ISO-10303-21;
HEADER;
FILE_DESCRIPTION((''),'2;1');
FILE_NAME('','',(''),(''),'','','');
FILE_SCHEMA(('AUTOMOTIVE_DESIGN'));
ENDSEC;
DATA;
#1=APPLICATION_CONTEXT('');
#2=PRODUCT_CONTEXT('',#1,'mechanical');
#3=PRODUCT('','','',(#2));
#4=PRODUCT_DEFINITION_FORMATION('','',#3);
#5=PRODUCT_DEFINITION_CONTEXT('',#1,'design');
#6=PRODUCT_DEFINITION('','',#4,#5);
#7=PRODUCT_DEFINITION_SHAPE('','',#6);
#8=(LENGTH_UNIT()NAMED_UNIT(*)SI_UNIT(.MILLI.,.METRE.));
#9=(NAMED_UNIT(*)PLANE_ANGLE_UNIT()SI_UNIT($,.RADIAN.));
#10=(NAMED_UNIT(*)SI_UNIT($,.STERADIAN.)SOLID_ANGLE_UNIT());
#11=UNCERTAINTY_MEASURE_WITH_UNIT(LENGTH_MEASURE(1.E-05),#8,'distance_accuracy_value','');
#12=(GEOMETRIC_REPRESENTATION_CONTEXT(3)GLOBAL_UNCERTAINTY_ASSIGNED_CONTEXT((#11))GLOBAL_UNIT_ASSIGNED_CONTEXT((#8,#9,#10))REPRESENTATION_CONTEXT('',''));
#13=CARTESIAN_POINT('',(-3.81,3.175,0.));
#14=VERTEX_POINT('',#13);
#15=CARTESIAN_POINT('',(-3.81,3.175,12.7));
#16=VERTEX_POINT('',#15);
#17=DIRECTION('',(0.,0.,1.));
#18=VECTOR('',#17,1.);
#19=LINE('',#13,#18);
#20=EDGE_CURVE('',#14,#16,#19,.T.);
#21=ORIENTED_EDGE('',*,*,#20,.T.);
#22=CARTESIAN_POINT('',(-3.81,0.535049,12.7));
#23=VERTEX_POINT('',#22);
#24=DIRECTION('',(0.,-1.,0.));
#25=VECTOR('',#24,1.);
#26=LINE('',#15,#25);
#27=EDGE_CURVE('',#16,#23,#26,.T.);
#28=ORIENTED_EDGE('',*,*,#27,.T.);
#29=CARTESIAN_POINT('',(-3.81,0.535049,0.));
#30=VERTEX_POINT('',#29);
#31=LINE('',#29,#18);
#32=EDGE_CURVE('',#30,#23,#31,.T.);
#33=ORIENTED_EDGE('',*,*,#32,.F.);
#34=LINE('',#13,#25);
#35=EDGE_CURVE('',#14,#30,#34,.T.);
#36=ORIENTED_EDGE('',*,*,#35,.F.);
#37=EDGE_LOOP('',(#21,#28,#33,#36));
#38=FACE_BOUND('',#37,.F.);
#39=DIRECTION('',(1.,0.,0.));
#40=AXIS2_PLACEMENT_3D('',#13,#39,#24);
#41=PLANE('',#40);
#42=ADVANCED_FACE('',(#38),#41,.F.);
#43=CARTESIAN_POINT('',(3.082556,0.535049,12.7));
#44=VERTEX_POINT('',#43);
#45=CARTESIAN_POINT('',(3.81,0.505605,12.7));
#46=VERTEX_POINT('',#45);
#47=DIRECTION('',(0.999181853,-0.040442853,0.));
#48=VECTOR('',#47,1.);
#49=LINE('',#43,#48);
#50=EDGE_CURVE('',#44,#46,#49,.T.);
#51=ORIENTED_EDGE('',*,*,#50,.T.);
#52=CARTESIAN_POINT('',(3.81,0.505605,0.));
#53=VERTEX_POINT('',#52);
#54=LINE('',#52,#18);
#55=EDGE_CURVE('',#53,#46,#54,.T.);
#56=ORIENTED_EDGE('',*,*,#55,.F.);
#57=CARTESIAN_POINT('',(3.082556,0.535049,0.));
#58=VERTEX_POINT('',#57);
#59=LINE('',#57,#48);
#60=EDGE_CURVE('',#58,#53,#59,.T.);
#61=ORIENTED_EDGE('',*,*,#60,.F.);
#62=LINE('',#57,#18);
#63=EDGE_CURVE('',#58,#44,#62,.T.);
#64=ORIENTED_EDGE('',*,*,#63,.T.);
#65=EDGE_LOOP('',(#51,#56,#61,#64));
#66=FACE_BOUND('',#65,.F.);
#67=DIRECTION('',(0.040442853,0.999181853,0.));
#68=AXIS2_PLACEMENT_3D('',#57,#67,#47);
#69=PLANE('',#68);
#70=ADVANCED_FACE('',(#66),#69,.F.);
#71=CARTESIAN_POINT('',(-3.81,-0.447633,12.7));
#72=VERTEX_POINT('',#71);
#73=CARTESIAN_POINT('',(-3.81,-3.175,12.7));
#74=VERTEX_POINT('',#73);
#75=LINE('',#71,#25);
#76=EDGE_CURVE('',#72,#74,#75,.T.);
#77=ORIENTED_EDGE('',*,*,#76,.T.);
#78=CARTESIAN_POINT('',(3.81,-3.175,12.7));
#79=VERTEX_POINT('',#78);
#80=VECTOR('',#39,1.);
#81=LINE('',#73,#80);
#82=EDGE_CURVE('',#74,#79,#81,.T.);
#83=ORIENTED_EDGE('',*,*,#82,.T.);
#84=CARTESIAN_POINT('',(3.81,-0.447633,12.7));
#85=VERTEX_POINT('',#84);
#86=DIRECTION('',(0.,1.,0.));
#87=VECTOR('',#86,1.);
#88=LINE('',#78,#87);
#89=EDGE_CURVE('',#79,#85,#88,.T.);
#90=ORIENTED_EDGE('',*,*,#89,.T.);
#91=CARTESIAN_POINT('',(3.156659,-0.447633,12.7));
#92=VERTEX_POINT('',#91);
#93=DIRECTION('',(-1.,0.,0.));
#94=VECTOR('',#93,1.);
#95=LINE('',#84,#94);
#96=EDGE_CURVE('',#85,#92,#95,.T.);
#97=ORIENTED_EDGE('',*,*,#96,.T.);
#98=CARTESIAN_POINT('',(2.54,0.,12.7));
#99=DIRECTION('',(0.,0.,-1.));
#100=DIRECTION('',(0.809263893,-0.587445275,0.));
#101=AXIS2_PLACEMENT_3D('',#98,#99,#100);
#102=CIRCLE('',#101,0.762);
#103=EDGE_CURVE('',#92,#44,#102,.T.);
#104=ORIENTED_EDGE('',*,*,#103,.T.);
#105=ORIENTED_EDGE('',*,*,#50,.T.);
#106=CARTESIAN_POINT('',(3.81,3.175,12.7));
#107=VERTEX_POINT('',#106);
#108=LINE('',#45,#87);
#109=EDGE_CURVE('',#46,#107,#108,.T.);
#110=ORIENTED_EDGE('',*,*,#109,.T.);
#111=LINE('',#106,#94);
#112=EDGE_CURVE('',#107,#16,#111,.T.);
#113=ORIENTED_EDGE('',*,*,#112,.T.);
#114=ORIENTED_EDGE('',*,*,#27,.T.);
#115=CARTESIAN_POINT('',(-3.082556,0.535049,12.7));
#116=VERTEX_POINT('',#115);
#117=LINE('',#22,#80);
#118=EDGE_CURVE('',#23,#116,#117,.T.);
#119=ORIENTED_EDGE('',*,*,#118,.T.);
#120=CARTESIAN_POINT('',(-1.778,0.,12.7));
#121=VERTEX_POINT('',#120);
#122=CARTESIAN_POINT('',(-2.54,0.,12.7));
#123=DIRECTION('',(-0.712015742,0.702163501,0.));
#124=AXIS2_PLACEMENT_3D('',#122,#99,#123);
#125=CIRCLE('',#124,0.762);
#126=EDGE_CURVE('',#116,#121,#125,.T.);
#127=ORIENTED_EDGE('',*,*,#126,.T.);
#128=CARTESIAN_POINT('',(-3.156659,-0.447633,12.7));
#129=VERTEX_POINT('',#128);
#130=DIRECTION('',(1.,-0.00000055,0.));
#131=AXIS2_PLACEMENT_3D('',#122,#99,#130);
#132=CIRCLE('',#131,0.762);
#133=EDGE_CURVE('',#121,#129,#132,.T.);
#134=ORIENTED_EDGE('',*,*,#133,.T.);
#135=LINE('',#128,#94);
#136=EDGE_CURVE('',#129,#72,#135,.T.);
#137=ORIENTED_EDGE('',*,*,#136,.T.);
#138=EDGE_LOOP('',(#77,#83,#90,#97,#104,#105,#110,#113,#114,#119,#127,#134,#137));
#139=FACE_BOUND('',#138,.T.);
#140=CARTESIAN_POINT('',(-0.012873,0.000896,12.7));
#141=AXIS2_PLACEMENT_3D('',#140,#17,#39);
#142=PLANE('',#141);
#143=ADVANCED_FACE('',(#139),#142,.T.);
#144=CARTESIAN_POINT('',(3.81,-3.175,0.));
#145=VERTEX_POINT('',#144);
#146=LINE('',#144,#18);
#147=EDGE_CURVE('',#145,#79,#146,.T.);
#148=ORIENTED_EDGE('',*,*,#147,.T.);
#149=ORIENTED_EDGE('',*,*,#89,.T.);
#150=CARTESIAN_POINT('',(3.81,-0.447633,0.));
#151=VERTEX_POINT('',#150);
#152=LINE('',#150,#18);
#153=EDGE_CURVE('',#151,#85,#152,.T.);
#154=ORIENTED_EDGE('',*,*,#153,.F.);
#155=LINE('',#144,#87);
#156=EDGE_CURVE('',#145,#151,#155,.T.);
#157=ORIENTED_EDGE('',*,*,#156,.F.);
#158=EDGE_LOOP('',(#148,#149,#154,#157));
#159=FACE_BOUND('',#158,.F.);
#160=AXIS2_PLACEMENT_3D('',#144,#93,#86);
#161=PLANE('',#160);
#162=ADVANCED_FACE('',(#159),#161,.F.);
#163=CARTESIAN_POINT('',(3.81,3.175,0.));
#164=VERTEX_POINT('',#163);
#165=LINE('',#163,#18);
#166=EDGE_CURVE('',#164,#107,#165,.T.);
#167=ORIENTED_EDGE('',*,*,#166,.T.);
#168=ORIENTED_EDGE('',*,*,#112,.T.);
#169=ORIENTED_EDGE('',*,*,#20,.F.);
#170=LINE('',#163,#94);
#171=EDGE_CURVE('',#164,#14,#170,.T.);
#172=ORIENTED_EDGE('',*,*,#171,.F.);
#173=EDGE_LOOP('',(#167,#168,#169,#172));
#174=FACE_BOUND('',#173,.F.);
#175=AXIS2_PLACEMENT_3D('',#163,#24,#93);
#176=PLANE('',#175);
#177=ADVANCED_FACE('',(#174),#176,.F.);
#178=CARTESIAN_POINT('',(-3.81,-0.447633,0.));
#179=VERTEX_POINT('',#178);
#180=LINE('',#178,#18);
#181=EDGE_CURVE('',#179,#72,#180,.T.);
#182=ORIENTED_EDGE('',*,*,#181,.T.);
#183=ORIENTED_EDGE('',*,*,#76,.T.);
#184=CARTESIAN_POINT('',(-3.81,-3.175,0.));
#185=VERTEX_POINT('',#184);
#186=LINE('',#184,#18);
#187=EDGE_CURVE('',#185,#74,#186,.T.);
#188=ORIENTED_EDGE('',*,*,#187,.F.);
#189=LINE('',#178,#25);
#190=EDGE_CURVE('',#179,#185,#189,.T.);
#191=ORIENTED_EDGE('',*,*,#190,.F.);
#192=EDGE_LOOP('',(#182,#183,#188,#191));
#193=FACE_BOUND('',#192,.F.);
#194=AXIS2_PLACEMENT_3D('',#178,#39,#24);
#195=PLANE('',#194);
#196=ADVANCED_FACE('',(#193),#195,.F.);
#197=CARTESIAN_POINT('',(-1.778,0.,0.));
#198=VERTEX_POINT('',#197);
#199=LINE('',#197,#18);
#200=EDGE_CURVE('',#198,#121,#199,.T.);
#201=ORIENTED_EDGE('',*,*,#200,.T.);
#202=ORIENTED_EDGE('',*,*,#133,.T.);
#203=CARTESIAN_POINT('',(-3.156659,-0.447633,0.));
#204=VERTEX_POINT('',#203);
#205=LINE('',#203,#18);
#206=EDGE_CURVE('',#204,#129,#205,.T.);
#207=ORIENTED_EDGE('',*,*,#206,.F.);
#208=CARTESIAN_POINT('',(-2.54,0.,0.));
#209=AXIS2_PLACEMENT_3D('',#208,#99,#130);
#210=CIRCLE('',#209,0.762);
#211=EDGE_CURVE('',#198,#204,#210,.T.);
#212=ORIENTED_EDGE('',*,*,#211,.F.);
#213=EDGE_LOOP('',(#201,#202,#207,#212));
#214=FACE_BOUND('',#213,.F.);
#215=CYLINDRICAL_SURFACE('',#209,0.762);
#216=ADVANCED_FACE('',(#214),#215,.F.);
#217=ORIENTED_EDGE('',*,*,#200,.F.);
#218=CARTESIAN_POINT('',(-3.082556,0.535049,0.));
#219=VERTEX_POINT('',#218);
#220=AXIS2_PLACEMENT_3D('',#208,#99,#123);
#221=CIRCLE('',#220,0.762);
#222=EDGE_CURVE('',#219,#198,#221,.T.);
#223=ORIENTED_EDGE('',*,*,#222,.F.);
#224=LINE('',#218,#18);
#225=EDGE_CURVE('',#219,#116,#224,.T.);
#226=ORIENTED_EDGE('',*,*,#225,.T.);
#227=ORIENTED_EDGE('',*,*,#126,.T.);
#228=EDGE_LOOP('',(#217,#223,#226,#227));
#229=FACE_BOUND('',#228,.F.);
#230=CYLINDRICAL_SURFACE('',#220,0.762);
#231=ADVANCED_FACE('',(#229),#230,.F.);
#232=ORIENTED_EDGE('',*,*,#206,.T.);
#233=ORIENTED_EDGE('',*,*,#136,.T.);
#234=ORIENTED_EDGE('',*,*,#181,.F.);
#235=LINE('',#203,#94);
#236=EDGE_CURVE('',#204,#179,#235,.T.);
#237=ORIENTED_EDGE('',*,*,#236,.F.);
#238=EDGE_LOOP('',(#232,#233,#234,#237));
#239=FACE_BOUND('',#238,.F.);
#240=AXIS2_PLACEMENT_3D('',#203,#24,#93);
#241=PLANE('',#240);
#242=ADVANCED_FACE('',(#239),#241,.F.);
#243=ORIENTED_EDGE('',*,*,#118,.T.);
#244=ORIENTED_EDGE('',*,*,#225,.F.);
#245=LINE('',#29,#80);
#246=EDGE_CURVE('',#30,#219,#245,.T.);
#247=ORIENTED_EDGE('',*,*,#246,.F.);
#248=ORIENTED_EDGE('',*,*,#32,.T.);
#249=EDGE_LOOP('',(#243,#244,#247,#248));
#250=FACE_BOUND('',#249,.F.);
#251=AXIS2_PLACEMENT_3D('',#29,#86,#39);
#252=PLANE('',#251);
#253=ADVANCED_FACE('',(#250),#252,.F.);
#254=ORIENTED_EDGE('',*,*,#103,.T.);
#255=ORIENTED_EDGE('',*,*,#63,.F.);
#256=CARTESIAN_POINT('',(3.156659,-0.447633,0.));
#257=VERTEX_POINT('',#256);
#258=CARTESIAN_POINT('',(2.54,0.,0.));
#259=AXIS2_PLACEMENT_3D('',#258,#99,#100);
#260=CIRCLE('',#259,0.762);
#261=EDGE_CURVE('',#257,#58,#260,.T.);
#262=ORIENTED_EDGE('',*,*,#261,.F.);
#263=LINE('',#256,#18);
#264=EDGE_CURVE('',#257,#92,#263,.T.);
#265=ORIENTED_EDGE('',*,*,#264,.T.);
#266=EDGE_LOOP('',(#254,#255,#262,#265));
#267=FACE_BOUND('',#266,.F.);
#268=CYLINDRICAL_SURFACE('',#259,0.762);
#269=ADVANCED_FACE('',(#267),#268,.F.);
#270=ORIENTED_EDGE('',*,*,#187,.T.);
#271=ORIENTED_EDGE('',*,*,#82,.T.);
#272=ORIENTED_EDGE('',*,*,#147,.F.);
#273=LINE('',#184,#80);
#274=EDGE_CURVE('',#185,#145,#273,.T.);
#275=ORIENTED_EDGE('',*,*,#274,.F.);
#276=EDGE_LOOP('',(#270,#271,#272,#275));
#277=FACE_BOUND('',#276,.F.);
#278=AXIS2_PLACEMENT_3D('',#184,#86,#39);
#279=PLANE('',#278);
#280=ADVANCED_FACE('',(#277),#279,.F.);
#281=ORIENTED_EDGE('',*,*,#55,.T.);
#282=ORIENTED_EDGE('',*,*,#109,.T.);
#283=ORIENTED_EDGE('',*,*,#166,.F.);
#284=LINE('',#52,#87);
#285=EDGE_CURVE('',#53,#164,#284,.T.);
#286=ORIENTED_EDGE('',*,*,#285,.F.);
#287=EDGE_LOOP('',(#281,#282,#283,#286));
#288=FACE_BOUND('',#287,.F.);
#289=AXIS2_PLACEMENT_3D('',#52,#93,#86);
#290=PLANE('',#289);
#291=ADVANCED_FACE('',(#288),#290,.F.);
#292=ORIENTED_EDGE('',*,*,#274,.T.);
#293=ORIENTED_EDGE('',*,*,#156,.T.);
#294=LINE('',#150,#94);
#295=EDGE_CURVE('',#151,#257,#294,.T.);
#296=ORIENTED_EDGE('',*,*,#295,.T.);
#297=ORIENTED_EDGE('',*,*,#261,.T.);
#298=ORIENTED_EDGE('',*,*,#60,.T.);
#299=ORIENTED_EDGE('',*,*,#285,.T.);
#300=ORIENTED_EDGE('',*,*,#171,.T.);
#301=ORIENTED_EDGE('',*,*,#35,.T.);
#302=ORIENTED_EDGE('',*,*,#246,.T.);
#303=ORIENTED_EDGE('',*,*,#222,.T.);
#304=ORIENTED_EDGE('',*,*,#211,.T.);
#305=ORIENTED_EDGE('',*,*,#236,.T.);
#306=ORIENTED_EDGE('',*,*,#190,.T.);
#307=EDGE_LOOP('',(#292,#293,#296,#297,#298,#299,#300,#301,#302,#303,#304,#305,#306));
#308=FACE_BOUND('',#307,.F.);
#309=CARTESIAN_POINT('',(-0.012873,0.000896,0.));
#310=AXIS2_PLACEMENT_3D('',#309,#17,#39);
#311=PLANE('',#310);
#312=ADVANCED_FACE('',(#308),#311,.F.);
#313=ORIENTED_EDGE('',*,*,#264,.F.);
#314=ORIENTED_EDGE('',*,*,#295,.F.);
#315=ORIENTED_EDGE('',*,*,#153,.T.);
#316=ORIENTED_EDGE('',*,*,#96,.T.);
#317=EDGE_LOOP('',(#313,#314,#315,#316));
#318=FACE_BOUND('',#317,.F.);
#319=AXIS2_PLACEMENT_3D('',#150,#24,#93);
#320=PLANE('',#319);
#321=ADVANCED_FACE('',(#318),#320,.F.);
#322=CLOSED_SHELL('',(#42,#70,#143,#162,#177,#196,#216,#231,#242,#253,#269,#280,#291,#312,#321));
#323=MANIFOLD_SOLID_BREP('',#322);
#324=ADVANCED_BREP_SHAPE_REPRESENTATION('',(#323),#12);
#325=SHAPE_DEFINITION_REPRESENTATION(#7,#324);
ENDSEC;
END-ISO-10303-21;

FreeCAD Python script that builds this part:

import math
import FreeCAD as App
import Part
import Sketcher
from FreeCAD import Vector
Q = App.Units.Quantity

doc = App.newDocument("Part")
body = doc.addObject("PartDesign::Body", "Body")

# Sketch on XY plane
sketch1 = body.newObject("Sketcher::SketchObject", "Sketch")
sketch1.AttachmentSupport = (doc.getObject("XY_Plane"), [""])
sketch1.MapMode = "FlatFace"
sketch1.addGeometry([
    Part.LineSegment(Vector(-3.81, -0.447633, 0), Vector(-3.81, -3.175, 0)),  # 0
    Part.LineSegment(Vector(-3.81, -3.175, 0), Vector(3.81, -3.175, 0)),  # 1
    Part.LineSegment(Vector(3.81, -3.175, 0), Vector(3.81, -0.447633, 0)),  # 2
    Part.LineSegment(Vector(3.81, -0.447633, 0), Vector(3.156659, -0.447633, 0)),  # 3
    Part.ArcOfCircle(Part.Circle(Vector(2.54, 0, 0), Vector(0, 0, 1), 0.762), math.radians(44.600829), math.radians(324.024074)),  # 4
    Part.LineSegment(Vector(3.082556, 0.535049, 0), Vector(3.81, 0.505605, 0)),  # 5
    Part.LineSegment(Vector(3.81, 0.505605, 0), Vector(3.81, 3.175, 0)),  # 6
    Part.LineSegment(Vector(3.81, 3.175, 0), Vector(-3.81, 3.175, 0)),  # 7
    Part.LineSegment(Vector(-3.81, 3.175, 0), Vector(-3.81, 0.535049, 0)),  # 8
    Part.LineSegment(Vector(-3.81, 0.535049, 0), Vector(-3.082556, 0.535049, 0)),  # 9
    Part.ArcOfCircle(Part.Circle(Vector(-2.54, 0, 0), Vector(0, 0, 1), 0.762), math.radians(-0.000031), math.radians(135.399159)),  # 10
    Part.ArcOfCircle(Part.Circle(Vector(-2.54, 0, 0), Vector(0, 0, 1), 0.762), math.radians(-144.024063), math.radians(-0.000032)),  # 11
    Part.LineSegment(Vector(-3.156659, -0.447633, 0), Vector(-3.81, -0.447633, 0)),  # 12
], False)
sketch1.addConstraint([
    Sketcher.Constraint("Coincident", 0, 2, 1, 1),
    Sketcher.Constraint("Coincident", 1, 2, 2, 1),
    Sketcher.Constraint("Coincident", 2, 2, 3, 1),
    Sketcher.Constraint("Coincident", 3, 2, 4, 2),
    Sketcher.Constraint("Coincident", 4, 1, 5, 1),
    Sketcher.Constraint("Coincident", 5, 2, 6, 1),
    Sketcher.Constraint("Coincident", 6, 2, 7, 1),
    Sketcher.Constraint("Coincident", 7, 2, 8, 1),
    Sketcher.Constraint("Coincident", 8, 2, 9, 1),
    Sketcher.Constraint("Coincident", 9, 2, 10, 2),
    Sketcher.Constraint("Tangent", 10, 1, 11, 2),
    Sketcher.Constraint("Coincident", 11, 1, 12, 1),
    Sketcher.Constraint("Coincident", 12, 2, 0, 1),
    Sketcher.Constraint("Vertical", 0),
    Sketcher.Constraint("Horizontal", 1),
    Sketcher.Constraint("Vertical", 2),
    Sketcher.Constraint("Horizontal", 3),
    Sketcher.Constraint("Vertical", 6),
    Sketcher.Constraint("Horizontal", 7),
    Sketcher.Constraint("Vertical", 8),
    Sketcher.Constraint("Horizontal", 9),
    Sketcher.Constraint("Horizontal", 12),
    Sketcher.Constraint("Equal", 4, 10),
    Sketcher.Constraint("Equal", 10, 11),
    Sketcher.Constraint("Symmetric", 4, 3, 10, 3, -1, 1),
    Sketcher.Constraint("Symmetric", 0, 2, 6, 2, -1, 1),
    Sketcher.Constraint("Symmetric", 4, 1, 9, 2, -2),
    Sketcher.Constraint("Symmetric", 2, 2, 12, 2, -2),
    Sketcher.Constraint("PointOnObject", 10, 1, -1),
    Sketcher.Constraint("Vertical", 0, 2, 7, 2),
    Sketcher.Constraint("Radius", 4, Q("0.03 in")),
    Sketcher.Constraint("DistanceX", 1, 1, 1, 2, Q("0.3 in")),
    Sketcher.Constraint("DistanceX", -1, 1, 4, 3, Q("0.1 in")),
    Sketcher.Constraint("DistanceY", 0, 2, 7, 2, Q("0.25 in")),
    Sketcher.Constraint("DistanceX", 3, 2, 3, 1, 0.653341),
    Sketcher.Constraint("DistanceY", 8, 2, 8, 1, 2.639951),
    Sketcher.Constraint("Distance", 5, 0.72804),
])
pad1 = body.newObject("PartDesign::Pad", "Pad")
pad1.Profile = sketch1
pad1.Length = Q("0.5 in")

doc.recompute()
